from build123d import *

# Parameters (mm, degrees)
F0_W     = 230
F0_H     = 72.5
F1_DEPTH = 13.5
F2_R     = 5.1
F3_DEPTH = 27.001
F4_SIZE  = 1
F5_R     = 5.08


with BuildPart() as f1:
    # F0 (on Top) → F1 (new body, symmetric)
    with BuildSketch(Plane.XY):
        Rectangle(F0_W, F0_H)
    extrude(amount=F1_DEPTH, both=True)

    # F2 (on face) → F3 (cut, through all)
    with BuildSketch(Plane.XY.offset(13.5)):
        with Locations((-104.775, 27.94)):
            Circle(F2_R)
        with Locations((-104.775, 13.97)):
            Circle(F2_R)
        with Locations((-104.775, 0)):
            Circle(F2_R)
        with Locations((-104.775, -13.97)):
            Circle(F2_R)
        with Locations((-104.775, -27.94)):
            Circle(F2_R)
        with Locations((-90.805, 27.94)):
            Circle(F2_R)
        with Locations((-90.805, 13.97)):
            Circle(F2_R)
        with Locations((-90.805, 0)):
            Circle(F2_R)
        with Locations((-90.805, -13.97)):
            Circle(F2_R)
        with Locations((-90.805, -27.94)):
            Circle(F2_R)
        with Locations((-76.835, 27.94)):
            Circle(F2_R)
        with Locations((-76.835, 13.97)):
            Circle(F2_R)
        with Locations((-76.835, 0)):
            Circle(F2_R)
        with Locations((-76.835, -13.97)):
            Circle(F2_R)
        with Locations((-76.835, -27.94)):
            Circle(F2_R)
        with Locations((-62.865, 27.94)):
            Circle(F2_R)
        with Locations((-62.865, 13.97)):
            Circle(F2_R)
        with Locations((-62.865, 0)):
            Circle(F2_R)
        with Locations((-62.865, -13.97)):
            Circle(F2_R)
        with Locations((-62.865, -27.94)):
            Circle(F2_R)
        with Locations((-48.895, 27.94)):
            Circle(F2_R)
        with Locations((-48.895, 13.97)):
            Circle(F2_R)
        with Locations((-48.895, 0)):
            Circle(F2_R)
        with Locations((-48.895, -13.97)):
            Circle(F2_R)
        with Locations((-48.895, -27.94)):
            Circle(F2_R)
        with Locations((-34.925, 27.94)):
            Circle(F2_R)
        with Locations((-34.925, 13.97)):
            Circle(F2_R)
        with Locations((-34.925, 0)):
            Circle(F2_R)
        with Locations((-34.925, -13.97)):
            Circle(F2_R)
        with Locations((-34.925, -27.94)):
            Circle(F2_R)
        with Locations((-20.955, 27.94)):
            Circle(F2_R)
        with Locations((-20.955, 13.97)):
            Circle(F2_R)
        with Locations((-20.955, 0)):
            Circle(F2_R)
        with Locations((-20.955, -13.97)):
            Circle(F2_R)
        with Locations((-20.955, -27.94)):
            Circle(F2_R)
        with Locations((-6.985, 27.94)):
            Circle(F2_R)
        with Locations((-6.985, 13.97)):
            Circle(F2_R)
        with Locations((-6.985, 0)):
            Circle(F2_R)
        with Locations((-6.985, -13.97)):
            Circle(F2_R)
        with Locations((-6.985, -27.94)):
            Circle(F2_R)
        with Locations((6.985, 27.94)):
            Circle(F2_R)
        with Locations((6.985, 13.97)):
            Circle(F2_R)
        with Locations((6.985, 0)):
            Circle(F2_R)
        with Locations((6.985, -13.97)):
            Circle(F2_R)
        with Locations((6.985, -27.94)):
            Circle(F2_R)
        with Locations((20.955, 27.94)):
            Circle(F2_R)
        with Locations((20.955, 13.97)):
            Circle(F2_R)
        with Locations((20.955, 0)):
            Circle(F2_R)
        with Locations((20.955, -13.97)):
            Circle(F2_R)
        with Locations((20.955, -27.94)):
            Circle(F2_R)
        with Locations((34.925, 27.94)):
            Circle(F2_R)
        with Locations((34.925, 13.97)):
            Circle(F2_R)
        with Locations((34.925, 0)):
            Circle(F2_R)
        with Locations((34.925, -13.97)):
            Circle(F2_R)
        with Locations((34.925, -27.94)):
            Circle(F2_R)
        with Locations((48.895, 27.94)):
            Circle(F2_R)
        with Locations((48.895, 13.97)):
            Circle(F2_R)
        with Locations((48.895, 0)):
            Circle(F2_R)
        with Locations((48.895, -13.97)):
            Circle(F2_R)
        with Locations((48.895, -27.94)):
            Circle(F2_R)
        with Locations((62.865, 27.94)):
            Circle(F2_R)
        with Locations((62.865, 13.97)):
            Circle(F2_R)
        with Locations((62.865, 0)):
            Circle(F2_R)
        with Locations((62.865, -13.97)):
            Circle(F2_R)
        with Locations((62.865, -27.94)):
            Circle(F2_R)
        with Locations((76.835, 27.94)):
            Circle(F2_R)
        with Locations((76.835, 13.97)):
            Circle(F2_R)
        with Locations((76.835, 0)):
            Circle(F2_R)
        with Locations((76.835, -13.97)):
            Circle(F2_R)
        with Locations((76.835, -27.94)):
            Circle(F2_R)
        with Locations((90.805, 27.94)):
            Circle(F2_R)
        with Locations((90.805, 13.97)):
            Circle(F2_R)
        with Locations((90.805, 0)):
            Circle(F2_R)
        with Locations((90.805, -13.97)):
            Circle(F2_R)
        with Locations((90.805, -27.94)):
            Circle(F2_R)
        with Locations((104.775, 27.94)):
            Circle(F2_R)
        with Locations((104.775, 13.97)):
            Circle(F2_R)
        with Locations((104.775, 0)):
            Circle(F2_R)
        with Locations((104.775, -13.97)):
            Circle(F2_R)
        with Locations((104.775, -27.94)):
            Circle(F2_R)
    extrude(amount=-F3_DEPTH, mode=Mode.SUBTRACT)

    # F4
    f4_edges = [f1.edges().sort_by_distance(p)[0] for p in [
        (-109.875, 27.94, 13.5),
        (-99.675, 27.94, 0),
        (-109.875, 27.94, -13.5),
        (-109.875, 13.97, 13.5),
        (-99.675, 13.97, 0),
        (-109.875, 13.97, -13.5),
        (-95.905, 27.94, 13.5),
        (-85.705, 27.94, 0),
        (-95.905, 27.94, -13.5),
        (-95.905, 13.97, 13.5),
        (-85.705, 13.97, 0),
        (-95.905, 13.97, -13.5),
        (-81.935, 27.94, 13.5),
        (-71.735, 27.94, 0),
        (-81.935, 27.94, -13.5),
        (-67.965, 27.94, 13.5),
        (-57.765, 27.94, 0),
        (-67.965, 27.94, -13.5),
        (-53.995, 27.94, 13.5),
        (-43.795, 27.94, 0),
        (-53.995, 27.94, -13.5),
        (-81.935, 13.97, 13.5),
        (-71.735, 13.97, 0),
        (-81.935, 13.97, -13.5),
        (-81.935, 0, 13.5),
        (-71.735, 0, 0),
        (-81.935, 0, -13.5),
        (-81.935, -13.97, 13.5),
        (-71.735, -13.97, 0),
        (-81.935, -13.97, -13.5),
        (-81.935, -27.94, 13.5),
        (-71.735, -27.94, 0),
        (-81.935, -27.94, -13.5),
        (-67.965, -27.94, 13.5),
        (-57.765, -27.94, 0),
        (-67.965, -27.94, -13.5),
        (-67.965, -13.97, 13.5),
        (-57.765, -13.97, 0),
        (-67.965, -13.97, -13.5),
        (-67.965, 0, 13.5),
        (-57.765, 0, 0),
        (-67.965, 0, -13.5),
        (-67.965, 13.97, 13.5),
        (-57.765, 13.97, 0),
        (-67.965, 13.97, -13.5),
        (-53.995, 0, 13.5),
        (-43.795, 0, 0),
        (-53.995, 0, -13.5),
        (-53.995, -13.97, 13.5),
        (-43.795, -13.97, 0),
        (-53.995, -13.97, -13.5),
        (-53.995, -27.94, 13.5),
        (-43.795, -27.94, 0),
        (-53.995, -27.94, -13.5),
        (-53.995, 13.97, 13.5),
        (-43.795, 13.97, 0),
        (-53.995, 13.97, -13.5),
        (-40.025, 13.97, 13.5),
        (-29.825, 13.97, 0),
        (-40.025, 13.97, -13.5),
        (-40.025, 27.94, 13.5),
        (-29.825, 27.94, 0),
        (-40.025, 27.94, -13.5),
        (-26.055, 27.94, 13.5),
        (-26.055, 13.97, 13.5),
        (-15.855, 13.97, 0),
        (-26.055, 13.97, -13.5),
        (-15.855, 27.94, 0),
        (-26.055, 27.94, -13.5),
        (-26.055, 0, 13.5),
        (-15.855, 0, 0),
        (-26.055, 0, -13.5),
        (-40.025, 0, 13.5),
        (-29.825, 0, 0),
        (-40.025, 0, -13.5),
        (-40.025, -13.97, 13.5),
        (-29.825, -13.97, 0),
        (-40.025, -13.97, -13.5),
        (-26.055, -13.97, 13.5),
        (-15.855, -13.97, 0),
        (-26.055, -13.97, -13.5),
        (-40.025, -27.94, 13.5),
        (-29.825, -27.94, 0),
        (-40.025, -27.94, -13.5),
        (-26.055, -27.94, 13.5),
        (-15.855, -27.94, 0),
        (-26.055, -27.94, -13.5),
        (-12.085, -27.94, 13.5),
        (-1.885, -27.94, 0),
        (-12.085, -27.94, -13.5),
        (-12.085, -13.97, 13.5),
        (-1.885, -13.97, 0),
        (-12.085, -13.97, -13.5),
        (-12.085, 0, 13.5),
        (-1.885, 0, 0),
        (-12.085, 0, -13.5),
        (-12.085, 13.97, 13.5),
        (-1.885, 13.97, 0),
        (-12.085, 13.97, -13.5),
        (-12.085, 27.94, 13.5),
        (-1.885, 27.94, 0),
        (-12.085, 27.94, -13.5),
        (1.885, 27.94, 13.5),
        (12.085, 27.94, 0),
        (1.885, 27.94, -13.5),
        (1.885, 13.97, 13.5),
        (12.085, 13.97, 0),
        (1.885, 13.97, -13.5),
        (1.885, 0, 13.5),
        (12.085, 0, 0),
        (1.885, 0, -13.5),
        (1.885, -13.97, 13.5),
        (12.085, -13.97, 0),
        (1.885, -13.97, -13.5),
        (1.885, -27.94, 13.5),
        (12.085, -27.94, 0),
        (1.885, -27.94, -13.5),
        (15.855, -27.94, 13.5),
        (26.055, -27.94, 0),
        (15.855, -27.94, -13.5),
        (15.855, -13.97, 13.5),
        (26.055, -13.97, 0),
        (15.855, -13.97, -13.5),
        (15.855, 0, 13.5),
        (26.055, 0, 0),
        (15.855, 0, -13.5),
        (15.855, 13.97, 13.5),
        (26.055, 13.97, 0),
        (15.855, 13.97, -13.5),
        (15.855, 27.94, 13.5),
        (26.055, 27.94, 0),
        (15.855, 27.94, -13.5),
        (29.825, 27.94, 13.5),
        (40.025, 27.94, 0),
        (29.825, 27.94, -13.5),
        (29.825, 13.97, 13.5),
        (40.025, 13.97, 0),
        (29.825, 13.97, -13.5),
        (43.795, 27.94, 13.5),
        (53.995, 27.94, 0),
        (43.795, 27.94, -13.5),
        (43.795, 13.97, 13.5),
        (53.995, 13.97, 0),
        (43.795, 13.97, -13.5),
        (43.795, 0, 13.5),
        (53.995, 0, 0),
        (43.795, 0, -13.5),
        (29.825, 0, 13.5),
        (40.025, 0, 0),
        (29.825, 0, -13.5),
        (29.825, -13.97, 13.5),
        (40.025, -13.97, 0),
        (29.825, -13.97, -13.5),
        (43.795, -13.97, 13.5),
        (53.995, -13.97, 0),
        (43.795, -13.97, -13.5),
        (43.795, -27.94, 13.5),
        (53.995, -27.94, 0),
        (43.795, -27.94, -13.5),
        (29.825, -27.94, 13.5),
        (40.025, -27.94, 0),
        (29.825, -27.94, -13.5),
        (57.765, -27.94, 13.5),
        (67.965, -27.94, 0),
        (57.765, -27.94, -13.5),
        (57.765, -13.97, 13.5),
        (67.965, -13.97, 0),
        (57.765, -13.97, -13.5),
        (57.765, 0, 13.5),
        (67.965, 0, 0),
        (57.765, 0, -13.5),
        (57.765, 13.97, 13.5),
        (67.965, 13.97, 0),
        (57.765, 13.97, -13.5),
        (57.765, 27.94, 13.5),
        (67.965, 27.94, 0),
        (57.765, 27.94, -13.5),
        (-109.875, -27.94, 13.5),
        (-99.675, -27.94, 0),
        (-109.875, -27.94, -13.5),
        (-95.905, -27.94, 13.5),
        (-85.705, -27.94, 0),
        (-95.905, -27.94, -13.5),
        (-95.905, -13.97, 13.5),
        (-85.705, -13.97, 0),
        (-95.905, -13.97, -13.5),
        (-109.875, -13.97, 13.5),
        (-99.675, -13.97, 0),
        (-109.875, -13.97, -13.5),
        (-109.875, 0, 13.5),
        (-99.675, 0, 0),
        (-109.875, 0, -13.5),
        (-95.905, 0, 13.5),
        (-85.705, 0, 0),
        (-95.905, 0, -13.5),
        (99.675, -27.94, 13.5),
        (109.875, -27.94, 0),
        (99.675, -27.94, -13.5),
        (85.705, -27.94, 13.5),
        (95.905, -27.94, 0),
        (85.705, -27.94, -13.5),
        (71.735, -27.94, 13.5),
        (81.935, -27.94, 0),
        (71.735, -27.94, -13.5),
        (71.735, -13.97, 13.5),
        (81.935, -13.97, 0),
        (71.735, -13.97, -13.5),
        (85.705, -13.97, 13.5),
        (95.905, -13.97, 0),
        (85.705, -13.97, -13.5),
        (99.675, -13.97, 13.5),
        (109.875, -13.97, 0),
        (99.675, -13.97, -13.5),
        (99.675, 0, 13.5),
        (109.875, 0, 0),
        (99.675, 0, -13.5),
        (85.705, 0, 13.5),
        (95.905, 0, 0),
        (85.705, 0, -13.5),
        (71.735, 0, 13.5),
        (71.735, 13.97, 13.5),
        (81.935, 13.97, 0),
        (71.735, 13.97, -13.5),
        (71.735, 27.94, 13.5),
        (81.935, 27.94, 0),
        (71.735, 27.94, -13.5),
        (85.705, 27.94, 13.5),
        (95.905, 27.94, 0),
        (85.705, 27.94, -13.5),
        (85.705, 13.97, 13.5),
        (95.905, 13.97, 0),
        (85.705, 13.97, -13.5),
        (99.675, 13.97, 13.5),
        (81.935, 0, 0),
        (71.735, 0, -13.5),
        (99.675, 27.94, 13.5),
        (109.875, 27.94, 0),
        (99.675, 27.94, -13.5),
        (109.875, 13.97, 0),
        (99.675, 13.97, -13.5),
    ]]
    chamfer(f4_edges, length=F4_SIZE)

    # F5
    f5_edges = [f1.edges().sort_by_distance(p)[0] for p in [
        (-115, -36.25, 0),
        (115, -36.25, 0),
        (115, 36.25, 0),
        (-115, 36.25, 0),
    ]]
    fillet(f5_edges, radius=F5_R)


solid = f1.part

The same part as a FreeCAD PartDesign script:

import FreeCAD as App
import Part
import Sketcher
from FreeCAD import Vector


def edges_at(feature, points):
    """Names of the edges that pass closest to the given points."""
    edges = feature.Shape.Edges
    near = lambda p: min(range(len(edges)), key=lambda i: edges[i].distToShape(Part.Vertex(*p))[0])
    return sorted({f"Edge{near(p) + 1}" for p in points})

doc = App.newDocument("Part")
params = doc.addObject("Spreadsheet::Sheet", "Params")
for row, (alias, value) in enumerate([
    ("sketch1_width", "230 mm"),
    ("sketch1_height", "72.5 mm"),
    ("pad1_length", "27 mm"),
    ("sketch2_diameter", "10.2 mm"),
    ("chamfer_size", "1 mm"),
    ("fillet_radius", "5.08 mm"),
], start=1):
    params.set(f"A{row}", alias)
    params.set(f"B{row}", "=" + value)
    params.setAlias(f"B{row}", alias)

body = doc.addObject("PartDesign::Body", "Body")

# Sketch on XY plane
sketch1 = body.newObject("Sketcher::SketchObject", "Sketch")
sketch1.AttachmentSupport = (doc.getObject("XY_Plane"), [""])
sketch1.MapMode = "FlatFace"
sketch1.addGeometry([
    Part.LineSegment(Vector(-115, 36.25, 0), Vector(-115, -36.25, 0)),
    Part.LineSegment(Vector(-115, -36.25, 0), Vector(115, -36.25, 0)),
    Part.LineSegment(Vector(115, -36.25, 0), Vector(115, 36.25, 0)),
    Part.LineSegment(Vector(115, 36.25, 0), Vector(-115, 36.25, 0)),
], False)
sketch1.addConstraint([
    Sketcher.Constraint("Coincident", 0, 2, 1, 1),
    Sketcher.Constraint("Coincident", 1, 2, 2, 1),
    Sketcher.Constraint("Coincident", 2, 2, 3, 1),
    Sketcher.Constraint("Coincident", 3, 2, 0, 1),
    Sketcher.Constraint("Vertical", 0),
    Sketcher.Constraint("Horizontal", 1),
    Sketcher.Constraint("Vertical", 2),
    Sketcher.Constraint("Horizontal", 3),
    Sketcher.Constraint("Symmetric", 0, 2, 2, 2, -1, 1),
    Sketcher.Constraint("DistanceX", 1, 1, 1, 2, 230.0),
    Sketcher.Constraint("DistanceY", 0, 2, 0, 1, 72.5),
])
sketch1.setExpression("Constraints[9]", "Params.sketch1_width")
sketch1.setExpression("Constraints[10]", "Params.sketch1_height")
pad1 = body.newObject("PartDesign::Pad", "Pad")
pad1.Profile = sketch1
pad1.setExpression("Length", "Params.pad1_length")
pad1.Midplane = True

# Sketch on XY plane
sketch2 = body.newObject("Sketcher::SketchObject", "Sketch001")
sketch2.AttachmentSupport = (doc.getObject("XY_Plane"), [""])
sketch2.MapMode = "FlatFace"
sketch2.AttachmentOffset = App.Placement(Vector(0, 0, 13.5), App.Rotation())
sketch2.addGeometry([
    Part.Circle(Vector(-104.775, 27.94, 0), Vector(0, 0, 1), 5.1),  # 0
    Part.Circle(Vector(-104.775, 13.97, 0), Vector(0, 0, 1), 5.1),  # 1
    Part.Circle(Vector(-104.775, 0, 0), Vector(0, 0, 1), 5.1),  # 2
    Part.Circle(Vector(-104.775, -13.97, 0), Vector(0, 0, 1), 5.1),  # 3
    Part.Circle(Vector(-104.775, -27.94, 0), Vector(0, 0, 1), 5.1),  # 4
    Part.Circle(Vector(-90.805, 27.94, 0), Vector(0, 0, 1), 5.1),  # 5
    Part.Circle(Vector(-90.805, 13.97, 0), Vector(0, 0, 1), 5.1),  # 6
    Part.Circle(Vector(-90.805, 0, 0), Vector(0, 0, 1), 5.1),  # 7
    Part.Circle(Vector(-90.805, -13.97, 0), Vector(0, 0, 1), 5.1),  # 8
    Part.Circle(Vector(-90.805, -27.94, 0), Vector(0, 0, 1), 5.1),  # 9
    Part.Circle(Vector(-76.835, 27.94, 0), Vector(0, 0, 1), 5.1),  # 10
    Part.Circle(Vector(-76.835, 13.97, 0), Vector(0, 0, 1), 5.1),  # 11
    Part.Circle(Vector(-76.835, 0, 0), Vector(0, 0, 1), 5.1),  # 12
    Part.Circle(Vector(-76.835, -13.97, 0), Vector(0, 0, 1), 5.1),  # 13
    Part.Circle(Vector(-76.835, -27.94, 0), Vector(0, 0, 1), 5.1),  # 14
    Part.Circle(Vector(-62.865, 27.94, 0), Vector(0, 0, 1), 5.1),  # 15
    Part.Circle(Vector(-62.865, 13.97, 0), Vector(0, 0, 1), 5.1),  # 16
    Part.Circle(Vector(-62.865, 0, 0), Vector(0, 0, 1), 5.1),  # 17
    Part.Circle(Vector(-62.865, -13.97, 0), Vector(0, 0, 1), 5.1),  # 18
    Part.Circle(Vector(-62.865, -27.94, 0), Vector(0, 0, 1), 5.1),  # 19
    Part.Circle(Vector(-48.895, 27.94, 0), Vector(0, 0, 1), 5.1),  # 20
    Part.Circle(Vector(-48.895, 13.97, 0), Vector(0, 0, 1), 5.1),  # 21
    Part.Circle(Vector(-48.895, 0, 0), Vector(0, 0, 1), 5.1),  # 22
    Part.Circle(Vector(-48.895, -13.97, 0), Vector(0, 0, 1), 5.1),  # 23
    Part.Circle(Vector(-48.895, -27.94, 0), Vector(0, 0, 1), 5.1),  # 24
    Part.Circle(Vector(-34.925, 27.94, 0), Vector(0, 0, 1), 5.1),  # 25
    Part.Circle(Vector(-34.925, 13.97, 0), Vector(0, 0, 1), 5.1),  # 26
    Part.Circle(Vector(-34.925, 0, 0), Vector(0, 0, 1), 5.1),  # 27
    Part.Circle(Vector(-34.925, -13.97, 0), Vector(0, 0, 1), 5.1),  # 28
    Part.Circle(Vector(-34.925, -27.94, 0), Vector(0, 0, 1), 5.1),  # 29
    Part.Circle(Vector(-20.955, 27.94, 0), Vector(0, 0, 1), 5.1),  # 30
    Part.Circle(Vector(-20.955, 13.97, 0), Vector(0, 0, 1), 5.1),  # 31
    Part.Circle(Vector(-20.955, 0, 0), Vector(0, 0, 1), 5.1),  # 32
    Part.Circle(Vector(-20.955, -13.97, 0), Vector(0, 0, 1), 5.1),  # 33
    Part.Circle(Vector(-20.955, -27.94, 0), Vector(0, 0, 1), 5.1),  # 34
    Part.Circle(Vector(-6.985, 27.94, 0), Vector(0, 0, 1), 5.1),  # 35
    Part.Circle(Vector(-6.985, 13.97, 0), Vector(0, 0, 1), 5.1),  # 36
    Part.Circle(Vector(-6.985, 0, 0), Vector(0, 0, 1), 5.1),  # 37
    Part.Circle(Vector(-6.985, -13.97, 0), Vector(0, 0, 1), 5.1),  # 38
    Part.Circle(Vector(-6.985, -27.94, 0), Vector(0, 0, 1), 5.1),  # 39
    Part.Circle(Vector(6.985, 27.94, 0), Vector(0, 0, 1), 5.1),  # 40
    Part.Circle(Vector(6.985, 13.97, 0), Vector(0, 0, 1), 5.1),  # 41
    Part.Circle(Vector(6.985, 0, 0), Vector(0, 0, 1), 5.1),  # 42
    Part.Circle(Vector(6.985, -13.97, 0), Vector(0, 0, 1), 5.1),  # 43
    Part.Circle(Vector(6.985, -27.94, 0), Vector(0, 0, 1), 5.1),  # 44
    Part.Circle(Vector(20.955, 27.94, 0), Vector(0, 0, 1), 5.1),  # 45
    Part.Circle(Vector(20.955, 13.97, 0), Vector(0, 0, 1), 5.1),  # 46
    Part.Circle(Vector(20.955, 0, 0), Vector(0, 0, 1), 5.1),  # 47
    Part.Circle(Vector(20.955, -13.97, 0), Vector(0, 0, 1), 5.1),  # 48
    Part.Circle(Vector(20.955, -27.94, 0), Vector(0, 0, 1), 5.1),  # 49
    Part.Circle(Vector(34.925, 27.94, 0), Vector(0, 0, 1), 5.1),  # 50
    Part.Circle(Vector(34.925, 13.97, 0), Vector(0, 0, 1), 5.1),  # 51
    Part.Circle(Vector(34.925, 0, 0), Vector(0, 0, 1), 5.1),  # 52
    Part.Circle(Vector(34.925, -13.97, 0), Vector(0, 0, 1), 5.1),  # 53
    Part.Circle(Vector(34.925, -27.94, 0), Vector(0, 0, 1), 5.1),  # 54
    Part.Circle(Vector(48.895, 27.94, 0), Vector(0, 0, 1), 5.1),  # 55
    Part.Circle(Vector(48.895, 13.97, 0), Vector(0, 0, 1), 5.1),  # 56
    Part.Circle(Vector(48.895, 0, 0), Vector(0, 0, 1), 5.1),  # 57
    Part.Circle(Vector(48.895, -13.97, 0), Vector(0, 0, 1), 5.1),  # 58
    Part.Circle(Vector(48.895, -27.94, 0), Vector(0, 0, 1), 5.1),  # 59
    Part.Circle(Vector(62.865, 27.94, 0), Vector(0, 0, 1), 5.1),  # 60
    Part.Circle(Vector(62.865, 13.97, 0), Vector(0, 0, 1), 5.1),  # 61
    Part.Circle(Vector(62.865, 0, 0), Vector(0, 0, 1), 5.1),  # 62
    Part.Circle(Vector(62.865, -13.97, 0), Vector(0, 0, 1), 5.1),  # 63
    Part.Circle(Vector(62.865, -27.94, 0), Vector(0, 0, 1), 5.1),  # 64
    Part.Circle(Vector(76.835, 27.94, 0), Vector(0, 0, 1), 5.1),  # 65
    Part.Circle(Vector(76.835, 13.97, 0), Vector(0, 0, 1), 5.1),  # 66
    Part.Circle(Vector(76.835, 0, 0), Vector(0, 0, 1), 5.1),  # 67
    Part.Circle(Vector(76.835, -13.97, 0), Vector(0, 0, 1), 5.1),  # 68
    Part.Circle(Vector(76.835, -27.94, 0), Vector(0, 0, 1), 5.1),  # 69
    Part.Circle(Vector(90.805, 27.94, 0), Vector(0, 0, 1), 5.1),  # 70
    Part.Circle(Vector(90.805, 13.97, 0), Vector(0, 0, 1), 5.1),  # 71
    Part.Circle(Vector(90.805, 0, 0), Vector(0, 0, 1), 5.1),  # 72
    Part.Circle(Vector(90.805, -13.97, 0), Vector(0, 0, 1), 5.1),  # 73
    Part.Circle(Vector(90.805, -27.94, 0), Vector(0, 0, 1), 5.1),  # 74
    Part.Circle(Vector(104.775, 27.94, 0), Vector(0, 0, 1), 5.1),  # 75
    Part.Circle(Vector(104.775, 13.97, 0), Vector(0, 0, 1), 5.1),  # 76
    Part.Circle(Vector(104.775, 0, 0), Vector(0, 0, 1), 5.1),  # 77
    Part.Circle(Vector(104.775, -13.97, 0), Vector(0, 0, 1), 5.1),  # 78
    Part.Circle(Vector(104.775, -27.94, 0), Vector(0, 0, 1), 5.1),  # 79
], False)
sketch2.addConstraint([
    Sketcher.Constraint("Equal", 0, 1),
    Sketcher.Constraint("Equal", 1, 2),
    Sketcher.Constraint("Equal", 2, 3),
    Sketcher.Constraint("Equal", 3, 4),
    Sketcher.Constraint("Equal", 4, 5),
    Sketcher.Constraint("Equal", 5, 6),
    Sketcher.Constraint("Equal", 6, 7),
    Sketcher.Constraint("Equal", 7, 8),
    Sketcher.Constraint("Equal", 8, 9),
    Sketcher.Constraint("Equal", 9, 10),
    Sketcher.Constraint("Equal", 10, 11),
    Sketcher.Constraint("Equal", 11, 12),
    Sketcher.Constraint("Equal", 12, 13),
    Sketcher.Constraint("Equal", 13, 14),
    Sketcher.Constraint("Equal", 14, 15),
    Sketcher.Constraint("Equal", 15, 16),
    Sketcher.Constraint("Equal", 16, 17),
    Sketcher.Constraint("Equal", 17, 18),
    Sketcher.Constraint("Equal", 18, 19),
    Sketcher.Constraint("Equal", 19, 20),
    Sketcher.Constraint("Equal", 20, 21),
    Sketcher.Constraint("Equal", 21, 22),
    Sketcher.Constraint("Equal", 22, 23),
    Sketcher.Constraint("Equal", 23, 24),
    Sketcher.Constraint("Equal", 24, 25),
    Sketcher.Constraint("Equal", 25, 26),
    Sketcher.Constraint("Equal", 26, 27),
    Sketcher.Constraint("Equal", 27, 28),
    Sketcher.Constraint("Equal", 28, 29),
    Sketcher.Constraint("Equal", 29, 30),
    Sketcher.Constraint("Equal", 30, 31),
    Sketcher.Constraint("Equal", 31, 32),
    Sketcher.Constraint("Equal", 32, 33),
    Sketcher.Constraint("Equal", 33, 34),
    Sketcher.Constraint("Equal", 34, 35),
    Sketcher.Constraint("Equal", 35, 36),
    Sketcher.Constraint("Equal", 36, 37),
    Sketcher.Constraint("Equal", 37, 38),
    Sketcher.Constraint("Equal", 38, 39),
    Sketcher.Constraint("Equal", 39, 40),
    Sketcher.Constraint("Equal", 40, 41),
    Sketcher.Constraint("Equal", 41, 42),
    Sketcher.Constraint("Equal", 42, 43),
    Sketcher.Constraint("Equal", 43, 44),
    Sketcher.Constraint("Equal", 44, 45),
    Sketcher.Constraint("Equal", 45, 46),
    Sketcher.Constraint("Equal", 46, 47),
    Sketcher.Constraint("Equal", 47, 48),
    Sketcher.Constraint("Equal", 48, 49),
    Sketcher.Constraint("Equal", 49, 50),
    Sketcher.Constraint("Equal", 50, 51),
    Sketcher.Constraint("Equal", 51, 52),
    Sketcher.Constraint("Equal", 52, 53),
    Sketcher.Constraint("Equal", 53, 54),
    Sketcher.Constraint("Equal", 54, 55),
    Sketcher.Constraint("Equal", 55, 56),
    Sketcher.Constraint("Equal", 56, 57),
    Sketcher.Constraint("Equal", 57, 58),
    Sketcher.Constraint("Equal", 58, 59),
    Sketcher.Constraint("Equal", 59, 60),
    Sketcher.Constraint("Equal", 60, 61),
    Sketcher.Constraint("Equal", 61, 62),
    Sketcher.Constraint("Equal", 62, 63),
    Sketcher.Constraint("Equal", 63, 64),
    Sketcher.Constraint("Equal", 64, 65),
    Sketcher.Constraint("Equal", 65, 66),
    Sketcher.Constraint("Equal", 66, 67),
    Sketcher.Constraint("Equal", 67, 68),
    Sketcher.Constraint("Equal", 68, 69),
    Sketcher.Constraint("Equal", 69, 70),
    Sketcher.Constraint("Equal", 70, 71),
    Sketcher.Constraint("Equal", 71, 72),
    Sketcher.Constraint("Equal", 72, 73),
    Sketcher.Constraint("Equal", 73, 74),
    Sketcher.Constraint("Equal", 74, 75),
    Sketcher.Constraint("Equal", 75, 76),
    Sketcher.Constraint("Equal", 76, 77),
    Sketcher.Constraint("Equal", 77, 78),
    Sketcher.Constraint("Equal", 78, 79),
    Sketcher.Constraint("Symmetric", 39, 3, 40, 3, -1, 1),
    Sketcher.Constraint("Symmetric", 38, 3, 41, 3, -1, 1),
    Sketcher.Constraint("Symmetric", 37, 3, 42, 3, -1, 1),
    Sketcher.Constraint("Symmetric", 36, 3, 43, 3, -1, 1),
    Sketcher.Constraint("Symmetric", 35, 3, 44, 3, -1, 1),
    Sketcher.Constraint("Symmetric", 34, 3, 45, 3, -1, 1),
    Sketcher.Constraint("Symmetric", 33, 3, 46, 3, -1, 1),
    Sketcher.Constraint("Symmetric", 32, 3, 47, 3, -1, 1),
    Sketcher.Constraint("Symmetric", 31, 3, 48, 3, -1, 1),
    Sketcher.Constraint("Symmetric", 30, 3, 49, 3, -1, 1),
    Sketcher.Constraint("Symmetric", 29, 3, 50, 3, -1, 1),
    Sketcher.Constraint("Symmetric", 28, 3, 51, 3, -1, 1),
    Sketcher.Constraint("Symmetric", 27, 3, 52, 3, -1, 1),
    Sketcher.Constraint("Symmetric", 26, 3, 53, 3, -1, 1),
    Sketcher.Constraint("Symmetric", 25, 3, 54, 3, -1, 1),
    Sketcher.Constraint("Symmetric", 24, 3, 55, 3, -1, 1),
    Sketcher.Constraint("Symmetric", 23, 3, 56, 3, -1, 1),
    Sketcher.Constraint("Symmetric", 22, 3, 57, 3, -1, 1),
    Sketcher.Constraint("Symmetric", 21, 3, 58, 3, -1, 1),
    Sketcher.Constraint("Symmetric", 20, 3, 59, 3, -1, 1),
    Sketcher.Constraint("Symmetric", 19, 3, 60, 3, -1, 1),
    Sketcher.Constraint("Symmetric", 18, 3, 61, 3, -1, 1),
    Sketcher.Constraint("Symmetric", 17, 3, 62, 3, -1, 1),
    Sketcher.Constraint("Symmetric", 16, 3, 63, 3, -1, 1),
    Sketcher.Constraint("Symmetric", 15, 3, 64, 3, -1, 1),
    Sketcher.Constraint("Symmetric", 14, 3, 65, 3, -1, 1),
    Sketcher.Constraint("Symmetric", 13, 3, 66, 3, -1, 1),
    Sketcher.Constraint("Symmetric", 12, 3, 67, 3, -1, 1),
    Sketcher.Constraint("Symmetric", 11, 3, 68, 3, -1, 1),
    Sketcher.Constraint("Symmetric", 10, 3, 69, 3, -1, 1),
    Sketcher.Constraint("Symmetric", 9, 3, 70, 3, -1, 1),
    Sketcher.Constraint("Symmetric", 8, 3, 71, 3, -1, 1),
    Sketcher.Constraint("Symmetric", 7, 3, 72, 3, -1, 1),
    Sketcher.Constraint("Symmetric", 6, 3, 73, 3, -1, 1),
    Sketcher.Constraint("Symmetric", 5, 3, 74, 3, -1, 1),
    Sketcher.Constraint("Symmetric", 4, 3, 75, 3, -1, 1),
    Sketcher.Constraint("Symmetric", 3, 3, 76, 3, -1, 1),
    Sketcher.Constraint("Symmetric", 2, 3, 77, 3, -1, 1),
    Sketcher.Constraint("Symmetric", 1, 3, 78, 3, -1, 1),
    Sketcher.Constraint("Symmetric", 0, 3, 79, 3, -1, 1),
    Sketcher.Constraint("Symmetric", 35, 3, 40, 3, -2),
    Sketcher.Constraint("Symmetric", 36, 3, 41, 3, -2),
    Sketcher.Constraint("Symmetric", 30, 3, 45, 3, -2),
    Sketcher.Constraint("Symmetric", 31, 3, 46, 3, -2),
    Sketcher.Constraint("Symmetric", 25, 3, 50, 3, -2),
    Sketcher.Constraint("Symmetric", 26, 3, 51, 3, -2),
    Sketcher.Constraint("Symmetric", 20, 3, 55, 3, -2),
    Sketcher.Constraint("Symmetric", 21, 3, 56, 3, -2),
    Sketcher.Constraint("Symmetric", 15, 3, 60, 3, -2),
    Sketcher.Constraint("Symmetric", 16, 3, 61, 3, -2),
    Sketcher.Constraint("Symmetric", 10, 3, 65, 3, -2),
    Sketcher.Constraint("Symmetric", 11, 3, 66, 3, -2),
    Sketcher.Constraint("Symmetric", 5, 3, 70, 3, -2),
    Sketcher.Constraint("Symmetric", 6, 3, 71, 3, -2),
    Sketcher.Constraint("Symmetric", 0, 3, 75, 3, -2),
    Sketcher.Constraint("Symmetric", 1, 3, 76, 3, -2),
    Sketcher.Constraint("PointOnObject", 2, 3, -1),
    Sketcher.Constraint("PointOnObject", 7, 3, -1),
    Sketcher.Constraint("PointOnObject", 12, 3, -1),
    Sketcher.Constraint("PointOnObject", 17, 3, -1),
    Sketcher.Constraint("PointOnObject", 22, 3, -1),
    Sketcher.Constraint("PointOnObject", 27, 3, -1),
    Sketcher.Constraint("PointOnObject", 32, 3, -1),
    Sketcher.Constraint("PointOnObject", 37, 3, -1),
    Sketcher.Constraint("Horizontal", 0, 3, 5, 3),
    Sketcher.Constraint("Horizontal", 1, 3, 6, 3),
    Sketcher.Constraint("Horizontal", 5, 3, 10, 3),
    Sketcher.Constraint("Horizontal", 6, 3, 11, 3),
    Sketcher.Constraint("Horizontal", 10, 3, 15, 3),
    Sketcher.Constraint("Horizontal", 11, 3, 16, 3),
    Sketcher.Constraint("Horizontal", 15, 3, 20, 3),
    Sketcher.Constraint("Horizontal", 16, 3, 21, 3),
    Sketcher.Constraint("Horizontal", 20, 3, 25, 3),
    Sketcher.Constraint("Horizontal", 21, 3, 26, 3),
    Sketcher.Constraint("Horizontal", 25, 3, 30, 3),
    Sketcher.Constraint("Horizontal", 26, 3, 31, 3),
    Sketcher.Constraint("Horizontal", 30, 3, 35, 3),
    Sketcher.Constraint("Horizontal", 31, 3, 36, 3),
    Sketcher.Constraint("Vertical", 0, 3, 1, 3),
    Sketcher.Constraint("Vertical", 1, 3, 2, 3),
    Sketcher.Constraint("Vertical", 5, 3, 6, 3),
    Sketcher.Constraint("Vertical", 6, 3, 7, 3),
    Sketcher.Constraint("Vertical", 10, 3, 11, 3),
    Sketcher.Constraint("Vertical", 11, 3, 12, 3),
    Sketcher.Constraint("Vertical", 15, 3, 16, 3),
    Sketcher.Constraint("Vertical", 16, 3, 17, 3),
    Sketcher.Constraint("Vertical", 20, 3, 21, 3),
    Sketcher.Constraint("Vertical", 21, 3, 22, 3),
    Sketcher.Constraint("Vertical", 25, 3, 26, 3),
    Sketcher.Constraint("Vertical", 26, 3, 27, 3),
    Sketcher.Constraint("Vertical", 30, 3, 31, 3),
    Sketcher.Constraint("Vertical", 31, 3, 32, 3),
    Sketcher.Constraint("Vertical", 35, 3, 36, 3),
    Sketcher.Constraint("Vertical", 36, 3, 37, 3),
    Sketcher.Constraint("Diameter", 0, 10.2),
    Sketcher.Constraint("DistanceY", -1, 1, 0, 3, 27.94),
    Sketcher.Constraint("DistanceY", -1, 1, 1, 3, 13.97),
    Sketcher.Constraint("DistanceX", 0, 3, -1, 1, 104.775),
    Sketcher.Constraint("DistanceX", 5, 3, -1, 1, 90.805),
    Sketcher.Constraint("DistanceX", 10, 3, -1, 1, 76.835),
    Sketcher.Constraint("DistanceX", 15, 3, -1, 1, 62.865),
    Sketcher.Constraint("DistanceX", 20, 3, -1, 1, 48.895),
    Sketcher.Constraint("DistanceX", 25, 3, -1, 1, 34.925),
    Sketcher.Constraint("DistanceX", 30, 3, -1, 1, 20.955),
    Sketcher.Constraint("DistanceX", 35, 3, -1, 1, 6.985),
])
sketch2.setExpression("Constraints[173]", "Params.sketch2_diameter")
pocket1 = body.newObject("PartDesign::Pocket", "Pocket")
pocket1.Profile = sketch2
pocket1.Type = "ThroughAll"
doc.recompute()

chamfer = body.newObject("PartDesign::Chamfer", "Chamfer")
chamfer.Base = (pocket1, edges_at(pocket1, [
    (-109.875, 27.94, 13.5),
    (-99.675, 27.94, 0),
    (-109.875, 27.94, -13.5),
    (-109.875, 13.97, 13.5),
    (-99.675, 13.97, 0),
    (-109.875, 13.97, -13.5),
    (-95.905, 27.94, 13.5),
    (-85.705, 27.94, 0),
    (-95.905, 27.94, -13.5),
    (-95.905, 13.97, 13.5),
    (-85.705, 13.97, 0),
    (-95.905, 13.97, -13.5),
    (-81.935, 27.94, 13.5),
    (-71.735, 27.94, 0),
    (-81.935, 27.94, -13.5),
    (-67.965, 27.94, 13.5),
    (-57.765, 27.94, 0),
    (-67.965, 27.94, -13.5),
    (-53.995, 27.94, 13.5),
    (-43.795, 27.94, 0),
    (-53.995, 27.94, -13.5),
    (-81.935, 13.97, 13.5),
    (-71.735, 13.97, 0),
    (-81.935, 13.97, -13.5),
    (-81.935, 0, 13.5),
    (-71.735, 0, 0),
    (-81.935, 0, -13.5),
    (-81.935, -13.97, 13.5),
    (-71.735, -13.97, 0),
    (-81.935, -13.97, -13.5),
    (-81.935, -27.94, 13.5),
    (-71.735, -27.94, 0),
    (-81.935, -27.94, -13.5),
    (-67.965, -27.94, 13.5),
    (-57.765, -27.94, 0),
    (-67.965, -27.94, -13.5),
    (-67.965, -13.97, 13.5),
    (-57.765, -13.97, 0),
    (-67.965, -13.97, -13.5),
    (-67.965, 0, 13.5),
    (-57.765, 0, 0),
    (-67.965, 0, -13.5),
    (-67.965, 13.97, 13.5),
    (-57.765, 13.97, 0),
    (-67.965, 13.97, -13.5),
    (-53.995, 0, 13.5),
    (-43.795, 0, 0),
    (-53.995, 0, -13.5),
    (-53.995, -13.97, 13.5),
    (-43.795, -13.97, 0),
    (-53.995, -13.97, -13.5),
    (-53.995, -27.94, 13.5),
    (-43.795, -27.94, 0),
    (-53.995, -27.94, -13.5),
    (-53.995, 13.97, 13.5),
    (-43.795, 13.97, 0),
    (-53.995, 13.97, -13.5),
    (-40.025, 13.97, 13.5),
    (-29.825, 13.97, 0),
    (-40.025, 13.97, -13.5),
    (-40.025, 27.94, 13.5),
    (-29.825, 27.94, 0),
    (-40.025, 27.94, -13.5),
    (-26.055, 27.94, 13.5),
    (-26.055, 13.97, 13.5),
    (-15.855, 13.97, 0),
    (-26.055, 13.97, -13.5),
    (-15.855, 27.94, 0),
    (-26.055, 27.94, -13.5),
    (-26.055, 0, 13.5),
    (-15.855, 0, 0),
    (-26.055, 0, -13.5),
    (-40.025, 0, 13.5),
    (-29.825, 0, 0),
    (-40.025, 0, -13.5),
    (-40.025, -13.97, 13.5),
    (-29.825, -13.97, 0),
    (-40.025, -13.97, -13.5),
    (-26.055, -13.97, 13.5),
    (-15.855, -13.97, 0),
    (-26.055, -13.97, -13.5),
    (-40.025, -27.94, 13.5),
    (-29.825, -27.94, 0),
    (-40.025, -27.94, -13.5),
    (-26.055, -27.94, 13.5),
    (-15.855, -27.94, 0),
    (-26.055, -27.94, -13.5),
    (-12.085, -27.94, 13.5),
    (-1.885, -27.94, 0),
    (-12.085, -27.94, -13.5),
    (-12.085, -13.97, 13.5),
    (-1.885, -13.97, 0),
    (-12.085, -13.97, -13.5),
    (-12.085, 0, 13.5),
    (-1.885, 0, 0),
    (-12.085, 0, -13.5),
    (-12.085, 13.97, 13.5),
    (-1.885, 13.97, 0),
    (-12.085, 13.97, -13.5),
    (-12.085, 27.94, 13.5),
    (-1.885, 27.94, 0),
    (-12.085, 27.94, -13.5),
    (1.885, 27.94, 13.5),
    (12.085, 27.94, 0),
    (1.885, 27.94, -13.5),
    (1.885, 13.97, 13.5),
    (12.085, 13.97, 0),
    (1.885, 13.97, -13.5),
    (1.885, 0, 13.5),
    (12.085, 0, 0),
    (1.885, 0, -13.5),
    (1.885, -13.97, 13.5),
    (12.085, -13.97, 0),
    (1.885, -13.97, -13.5),
    (1.885, -27.94, 13.5),
    (12.085, -27.94, 0),
    (1.885, -27.94, -13.5),
    (15.855, -27.94, 13.5),
    (26.055, -27.94, 0),
    (15.855, -27.94, -13.5),
    (15.855, -13.97, 13.5),
    (26.055, -13.97, 0),
    (15.855, -13.97, -13.5),
    (15.855, 0, 13.5),
    (26.055, 0, 0),
    (15.855, 0, -13.5),
    (15.855, 13.97, 13.5),
    (26.055, 13.97, 0),
    (15.855, 13.97, -13.5),
    (15.855, 27.94, 13.5),
    (26.055, 27.94, 0),
    (15.855, 27.94, -13.5),
    (29.825, 27.94, 13.5),
    (40.025, 27.94, 0),
    (29.825, 27.94, -13.5),
    (29.825, 13.97, 13.5),
    (40.025, 13.97, 0),
    (29.825, 13.97, -13.5),
    (43.795, 27.94, 13.5),
    (53.995, 27.94, 0),
    (43.795, 27.94, -13.5),
    (43.795, 13.97, 13.5),
    (53.995, 13.97, 0),
    (43.795, 13.97, -13.5),
    (43.795, 0, 13.5),
    (53.995, 0, 0),
    (43.795, 0, -13.5),
    (29.825, 0, 13.5),
    (40.025, 0, 0),
    (29.825, 0, -13.5),
    (29.825, -13.97, 13.5),
    (40.025, -13.97, 0),
    (29.825, -13.97, -13.5),
    (43.795, -13.97, 13.5),
    (53.995, -13.97, 0),
    (43.795, -13.97, -13.5),
    (43.795, -27.94, 13.5),
    (53.995, -27.94, 0),
    (43.795, -27.94, -13.5),
    (29.825, -27.94, 13.5),
    (40.025, -27.94, 0),
    (29.825, -27.94, -13.5),
    (57.765, -27.94, 13.5),
    (67.965, -27.94, 0),
    (57.765, -27.94, -13.5),
    (57.765, -13.97, 13.5),
    (67.965, -13.97, 0),
    (57.765, -13.97, -13.5),
    (57.765, 0, 13.5),
    (67.965, 0, 0),
    (57.765, 0, -13.5),
    (57.765, 13.97, 13.5),
    (67.965, 13.97, 0),
    (57.765, 13.97, -13.5),
    (57.765, 27.94, 13.5),
    (67.965, 27.94, 0),
    (57.765, 27.94, -13.5),
    (-109.875, -27.94, 13.5),
    (-99.675, -27.94, 0),
    (-109.875, -27.94, -13.5),
    (-95.905, -27.94, 13.5),
    (-85.705, -27.94, 0),
    (-95.905, -27.94, -13.5),
    (-95.905, -13.97, 13.5),
    (-85.705, -13.97, 0),
    (-95.905, -13.97, -13.5),
    (-109.875, -13.97, 13.5),
    (-99.675, -13.97, 0),
    (-109.875, -13.97, -13.5),
    (-109.875, 0, 13.5),
    (-99.675, 0, 0),
    (-109.875, 0, -13.5),
    (-95.905, 0, 13.5),
    (-85.705, 0, 0),
    (-95.905, 0, -13.5),
    (99.675, -27.94, 13.5),
    (109.875, -27.94, 0),
    (99.675, -27.94, -13.5),
    (85.705, -27.94, 13.5),
    (95.905, -27.94, 0),
    (85.705, -27.94, -13.5),
    (71.735, -27.94, 13.5),
    (81.935, -27.94, 0),
    (71.735, -27.94, -13.5),
    (71.735, -13.97, 13.5),
    (81.935, -13.97, 0),
    (71.735, -13.97, -13.5),
    (85.705, -13.97, 13.5),
    (95.905, -13.97, 0),
    (85.705, -13.97, -13.5),
    (99.675, -13.97, 13.5),
    (109.875, -13.97, 0),
    (99.675, -13.97, -13.5),
    (99.675, 0, 13.5),
    (109.875, 0, 0),
    (99.675, 0, -13.5),
    (85.705, 0, 13.5),
    (95.905, 0, 0),
    (85.705, 0, -13.5),
    (71.735, 0, 13.5),
    (71.735, 13.97, 13.5),
    (81.935, 13.97, 0),
    (71.735, 13.97, -13.5),
    (71.735, 27.94, 13.5),
    (81.935, 27.94, 0),
    (71.735, 27.94, -13.5),
    (85.705, 27.94, 13.5),
    (95.905, 27.94, 0),
    (85.705, 27.94, -13.5),
    (85.705, 13.97, 13.5),
    (95.905, 13.97, 0),
    (85.705, 13.97, -13.5),
    (99.675, 13.97, 13.5),
    (81.935, 0, 0),
    (71.735, 0, -13.5),
    (99.675, 27.94, 13.5),
    (109.875, 27.94, 0),
    (99.675, 27.94, -13.5),
    (109.875, 13.97, 0),
    (99.675, 13.97, -13.5),
]))
chamfer.setExpression("Size", "Params.chamfer_size")
doc.recompute()

fillet = body.newObject("PartDesign::Fillet", "Fillet")
fillet.Base = (chamfer, edges_at(chamfer, [
    (-115, -36.25, 0),
    (115, -36.25, 0),
    (115, 36.25, 0),
    (-115, 36.25, 0),
]))
fillet.setExpression("Radius", "Params.fillet_radius")

doc.recompute()
